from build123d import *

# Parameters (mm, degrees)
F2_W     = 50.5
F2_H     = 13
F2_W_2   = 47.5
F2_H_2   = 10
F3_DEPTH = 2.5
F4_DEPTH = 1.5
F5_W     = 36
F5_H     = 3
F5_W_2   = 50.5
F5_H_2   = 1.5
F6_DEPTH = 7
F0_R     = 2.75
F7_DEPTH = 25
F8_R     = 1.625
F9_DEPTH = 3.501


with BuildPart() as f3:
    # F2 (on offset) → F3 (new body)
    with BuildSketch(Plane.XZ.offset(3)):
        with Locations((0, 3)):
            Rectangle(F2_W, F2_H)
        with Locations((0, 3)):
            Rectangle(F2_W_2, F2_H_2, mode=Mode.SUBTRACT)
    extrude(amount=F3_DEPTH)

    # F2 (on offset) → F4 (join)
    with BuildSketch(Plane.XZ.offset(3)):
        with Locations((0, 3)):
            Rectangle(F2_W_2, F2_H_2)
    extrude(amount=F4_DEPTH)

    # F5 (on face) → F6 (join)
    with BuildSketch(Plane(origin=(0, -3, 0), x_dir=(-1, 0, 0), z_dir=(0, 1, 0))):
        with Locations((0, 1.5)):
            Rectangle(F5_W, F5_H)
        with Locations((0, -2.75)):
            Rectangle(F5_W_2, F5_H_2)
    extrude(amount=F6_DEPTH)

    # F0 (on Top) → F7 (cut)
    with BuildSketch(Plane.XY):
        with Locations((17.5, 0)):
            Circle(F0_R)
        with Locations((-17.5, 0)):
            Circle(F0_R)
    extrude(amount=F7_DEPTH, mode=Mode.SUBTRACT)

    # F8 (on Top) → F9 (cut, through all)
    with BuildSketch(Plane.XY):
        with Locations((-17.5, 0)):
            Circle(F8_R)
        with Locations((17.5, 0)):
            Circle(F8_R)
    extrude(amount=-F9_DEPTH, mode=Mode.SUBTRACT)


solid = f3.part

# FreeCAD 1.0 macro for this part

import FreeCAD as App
import Part
import Sketcher
from FreeCAD import Vector
Q = App.Units.Quantity

doc = App.newDocument("Part")
params = doc.addObject("Spreadsheet::Sheet", "Params")
for row, (alias, value) in enumerate([
    ("sketch1_height", "13 mm"),
    ("sketch1_height2", "10 mm"),
    ("sketch1_width", "50.5 mm"),
    ("sketch1_width2", "47.5 mm"),
    ("pad1_length", "2.5 mm"),
    ("sketch2_height", "10 mm"),
    ("sketch2_width", "47.5 mm"),
    ("pad2_length", "1.5 mm"),
    ("sketch3_width", "36 mm"),
    ("sketch3_height", "3 mm"),
    ("sketch3_width2", "50.5 mm"),
    ("sketch3_height2", "1.5 mm"),
    ("pad3_length", "7 mm"),
    ("sketch4_diameter", "5.5 mm"),
    ("pocket1_length", "25 mm"),
    ("sketch5_diameter", "3.25 mm"),
], start=1):
    params.set(f"A{row}", alias)
    params.set(f"B{row}", "=" + value)
    params.setAlias(f"B{row}", alias)

body = doc.addObject("PartDesign::Body", "Body")

# Sketch on XZ plane
sketch1 = doc.addObject("Sketcher::SketchObject", "Sketch")
body.addObject(sketch1)
sketch1.AttachmentSupport = (doc.XZ_Plane, [""])
sketch1.MapMode = "FlatFace"
sketch1.AttachmentOffset = App.Placement(Vector(0, 0, 3), App.Rotation())
sketch1.addGeometry(Part.LineSegment(Vector(-25, 10, 0), Vector(-25, -4, 0)), False)
sketch1.addGeometry(Part.LineSegment(Vector(-25, -4, 0), Vector(25, -4, 0)), False)
sketch1.addGeometry(Part.LineSegment(Vector(25, -4, 0), Vector(25, 10, 0)), False)
sketch1.addGeometry(Part.LineSegment(Vector(25, 10, 0), Vector(-25, 10, 0)), False)
sketch1.addGeometry(Part.LineSegment(Vector(24, -2, 0), Vector(-24, -2, 0)), False)
sketch1.addGeometry(Part.LineSegment(Vector(-24, -2, 0), Vector(-24, 8, 0)), False)
sketch1.addGeometry(Part.LineSegment(Vector(-24, 8, 0), Vector(24, 8, 0)), False)
sketch1.addGeometry(Part.LineSegment(Vector(24, 8, 0), Vector(24, -2, 0)), False)
sketch1.addConstraint(Sketcher.Constraint("Coincident", 0, 2, 1, 1))
sketch1.addConstraint(Sketcher.Constraint("Coincident", 1, 2, 2, 1))
sketch1.addConstraint(Sketcher.Constraint("Coincident", 2, 2, 3, 1))
sketch1.addConstraint(Sketcher.Constraint("Coincident", 3, 2, 0, 1))
sketch1.addConstraint(Sketcher.Constraint("Coincident", 4, 2, 5, 1))
sketch1.addConstraint(Sketcher.Constraint("Coincident", 5, 2, 6, 1))
sketch1.addConstraint(Sketcher.Constraint("Coincident", 6, 2, 7, 1))
sketch1.addConstraint(Sketcher.Constraint("Coincident", 7, 2, 4, 1))
sketch1.addConstraint(Sketcher.Constraint("Vertical", 0))
sketch1.addConstraint(Sketcher.Constraint("Horizontal", 1))
sketch1.addConstraint(Sketcher.Constraint("Vertical", 2))
sketch1.addConstraint(Sketcher.Constraint("Horizontal", 3))
sketch1.addConstraint(Sketcher.Constraint("Horizontal", 4))
sketch1.addConstraint(Sketcher.Constraint("Vertical", 5))
sketch1.addConstraint(Sketcher.Constraint("Horizontal", 6))
sketch1.addConstraint(Sketcher.Constraint("Vertical", 7))
sketch1.addConstraint(Sketcher.Constraint("DistanceY", 0, 2, 0, 1, Q("13 mm")))
sketch1.addConstraint(Sketcher.Constraint("DistanceY", 5, 1, 5, 2, Q("10 mm")))
sketch1.addConstraint(Sketcher.Constraint("DistanceX", 1, 1, 1, 2, Q("50.5 mm")))
sketch1.addConstraint(Sketcher.Constraint("DistanceX", 4, 2, 4, 1, Q("47.5 mm")))
sketch1.addConstraint(Sketcher.Constraint("DistanceY", 4, 2, -1, 1, Q("2 mm")))
sketch1.addConstraint(Sketcher.Constraint("DistanceX", 4, 2, 1, 2, Q("49 mm")))
sketch1.addConstraint(Sketcher.Constraint("DistanceY", 0, 2, -1, 1, Q("3.5 mm")))
sketch1.addConstraint(Sketcher.Constraint("DistanceX", 0, 2, -1, 1, Q("25.25 mm")))
sketch1.setExpression("Constraints[16]", "Params.sketch1_height")
sketch1.setExpression("Constraints[17]", "Params.sketch1_height2")
sketch1.setExpression("Constraints[18]", "Params.sketch1_width")
sketch1.setExpression("Constraints[19]", "Params.sketch1_width2")
pad1 = doc.addObject("PartDesign::Pad", "Pad")
body.addObject(pad1)
pad1.Profile = sketch1
pad1.setExpression("Length", "Params.pad1_length")

# Sketch on XZ plane
sketch2 = doc.addObject("Sketcher::SketchObject", "Sketch001")
body.addObject(sketch2)
sketch2.AttachmentSupport = (doc.XZ_Plane, [""])
sketch2.MapMode = "FlatFace"
sketch2.AttachmentOffset = App.Placement(Vector(0, 0, 3), App.Rotation())
sketch2.addGeometry(Part.LineSegment(Vector(-24, 8, 0), Vector(-24, -2, 0)), False)
sketch2.addGeometry(Part.LineSegment(Vector(-24, -2, 0), Vector(24, -2, 0)), False)
sketch2.addGeometry(Part.LineSegment(Vector(24, -2, 0), Vector(24, 8, 0)), False)
sketch2.addGeometry(Part.LineSegment(Vector(24, 8, 0), Vector(-24, 8, 0)), False)
sketch2.addConstraint(Sketcher.Constraint("Coincident", 0, 2, 1, 1))
sketch2.addConstraint(Sketcher.Constraint("Coincident", 1, 2, 2, 1))
sketch2.addConstraint(Sketcher.Constraint("Coincident", 2, 2, 3, 1))
sketch2.addConstraint(Sketcher.Constraint("Coincident", 3, 2, 0, 1))
sketch2.addConstraint(Sketcher.Constraint("Vertical", 0))
sketch2.addConstraint(Sketcher.Constraint("Horizontal", 1))
sketch2.addConstraint(Sketcher.Constraint("Vertical", 2))
sketch2.addConstraint(Sketcher.Constraint("Horizontal", 3))
sketch2.addConstraint(Sketcher.Constraint("DistanceY", 0, 2, 0, 1, Q("10 mm")))
sketch2.addConstraint(Sketcher.Constraint("DistanceX", 1, 1, 1, 2, Q("47.5 mm")))
sketch2.addConstraint(Sketcher.Constraint("DistanceY", 0, 2, -1, 1, Q("2 mm")))
sketch2.addConstraint(Sketcher.Constraint("DistanceX", 0, 2, -1, 1, Q("23.75 mm")))
sketch2.setExpression("Constraints[8]", "Params.sketch2_height")
sketch2.setExpression("Constraints[9]", "Params.sketch2_width")
pad2 = doc.addObject("PartDesign::Pad", "Pad001")
body.addObject(pad2)
pad2.Profile = sketch2
pad2.setExpression("Length", "Params.pad2_length")

# Sketch on XZ plane
sketch3 = doc.addObject("Sketcher::SketchObject", "Sketch002")
body.addObject(sketch3)
sketch3.AttachmentSupport = (doc.XZ_Plane, [""])
sketch3.MapMode = "FlatFace"
sketch3.AttachmentOffset = App.Placement(Vector(0, 0, 3), App.Rotation())
sketch3.addGeometry(Part.LineSegment(Vector(18, 3, 0), Vector(18, 0, 0)), False)
sketch3.addGeometry(Part.LineSegment(Vector(18, 0, 0), Vector(-18, 0, 0)), False)
sketch3.addGeometry(Part.LineSegment(Vector(-18, 0, 0), Vector(-18, 3, 0)), False)
sketch3.addGeometry(Part.LineSegment(Vector(-18, 3, 0), Vector(18, 3, 0)), False)
sketch3.addGeometry(Part.LineSegment(Vector(25.2, -2, 0), Vector(25.2, -3.5, 0)), False)
sketch3.addGeometry(Part.LineSegment(Vector(25.2, -3.5, 0), Vector(-25.2, -3.5, 0)), False)
sketch3.addGeometry(Part.LineSegment(Vector(-25.2, -3.5, 0), Vector(-25.2, -2, 0)), False)
sketch3.addGeometry(Part.LineSegment(Vector(-25.2, -2, 0), Vector(25.2, -2, 0)), False)
sketch3.addConstraint(Sketcher.Constraint("Coincident", 0, 2, 1, 1))
sketch3.addConstraint(Sketcher.Constraint("Coincident", 1, 2, 2, 1))
sketch3.addConstraint(Sketcher.Constraint("Coincident", 2, 2, 3, 1))
sketch3.addConstraint(Sketcher.Constraint("Coincident", 3, 2, 0, 1))
sketch3.addConstraint(Sketcher.Constraint("Coincident", 4, 2, 5, 1))
sketch3.addConstraint(Sketcher.Constraint("Coincident", 5, 2, 6, 1))
sketch3.addConstraint(Sketcher.Constraint("Coincident", 6, 2, 7, 1))
sketch3.addConstraint(Sketcher.Constraint("Coincident", 7, 2, 4, 1))
sketch3.addConstraint(Sketcher.Constraint("Vertical", 0))
sketch3.addConstraint(Sketcher.Constraint("Horizontal", 1))
sketch3.addConstraint(Sketcher.Constraint("Vertical", 2))
sketch3.addConstraint(Sketcher.Constraint("Horizontal", 3))
sketch3.addConstraint(Sketcher.Constraint("Vertical", 4))
sketch3.addConstraint(Sketcher.Constraint("Horizontal", 5))
sketch3.addConstraint(Sketcher.Constraint("Vertical", 6))
sketch3.addConstraint(Sketcher.Constraint("Horizontal", 7))
sketch3.addConstraint(Sketcher.Constraint("Symmetric", 0, 2, 1, 2, -1, 1))
sketch3.addConstraint(Sketcher.Constraint("DistanceX", 1, 2, 1, 1, Q("36 mm")))
sketch3.addConstraint(Sketcher.Constraint("DistanceY", 0, 2, 0, 1, Q("3 mm")))
sketch3.addConstraint(Sketcher.Constraint("DistanceX", 5, 2, 5, 1, Q("50.5 mm")))
sketch3.addConstraint(Sketcher.Constraint("DistanceY", 4, 2, 4, 1, Q("1.5 mm")))
sketch3.addConstraint(Sketcher.Constraint("DistanceY", 6, 2, -1, 1, Q("2 mm")))
sketch3.addConstraint(Sketcher.Constraint("DistanceX", -1, 1, 4, 2, Q("25.25 mm")))
sketch3.setExpression("Constraints[17]", "Params.sketch3_width")
sketch3.setExpression("Constraints[18]", "Params.sketch3_height")
sketch3.setExpression("Constraints[19]", "Params.sketch3_width2")
sketch3.setExpression("Constraints[20]", "Params.sketch3_height2")
pad3 = doc.addObject("PartDesign::Pad", "Pad002")
body.addObject(pad3)
pad3.Profile = sketch3
pad3.setExpression("Length", "Params.pad3_length")
pad3.Reversed = True

# Sketch on XY plane
sketch4 = doc.addObject("Sketcher::SketchObject", "Sketch003")
body.addObject(sketch4)
sketch4.AttachmentSupport = (doc.XY_Plane, [""])
sketch4.MapMode = "FlatFace"
sketch4.addGeometry(Part.Circle(Vector(17.5, 0, 0), Vector(0, 0, 1), 2.8), False)
sketch4.addGeometry(Part.Circle(Vector(-17.5, 0, 0), Vector(0, 0, 1), 2.8), False)
sketch4.addConstraint(Sketcher.Constraint("Equal", 0, 1))
sketch4.addConstraint(Sketcher.Constraint("Symmetric", 0, 3, 1, 3, -1, 1))
sketch4.addConstraint(Sketcher.Constraint("PointOnObject", 0, 3, -1))
sketch4.addConstraint(Sketcher.Constraint("Diameter", 0, Q("5.5 mm")))
sketch4.addConstraint(Sketcher.Constraint("DistanceX", 1, 3, 0, 3, Q("35 mm")))
sketch4.setExpression("Constraints[3]", "Params.sketch4_diameter")
pocket1 = doc.addObject("PartDesign::Pocket", "Pocket")
body.addObject(pocket1)
pocket1.Profile = sketch4
pocket1.setExpression("Length", "Params.pocket1_length")
pocket1.Reversed = True

# Sketch on XY plane
sketch5 = doc.addObject("Sketcher::SketchObject", "Sketch004")
body.addObject(sketch5)
sketch5.AttachmentSupport = (doc.XY_Plane, [""])
sketch5.MapMode = "FlatFace"
sketch5.addGeometry(Part.Circle(Vector(-17.5, 0, 0), Vector(0, 0, 1), 1.6), False)
sketch5.addGeometry(Part.Circle(Vector(17.5, 0, 0), Vector(0, 0, 1), 1.6), False)
sketch5.addConstraint(Sketcher.Constraint("Equal", 0, 1))
sketch5.addConstraint(Sketcher.Constraint("Symmetric", 0, 3, 1, 3, -1, 1))
sketch5.addConstraint(Sketcher.Constraint("PointOnObject", 0, 3, -1))
sketch5.addConstraint(Sketcher.Constraint("Diameter", 0, Q("3.25 mm")))
sketch5.addConstraint(Sketcher.Constraint("DistanceX", 0, 3, 1, 3, Q("35 mm")))
sketch5.setExpression("Constraints[3]", "Params.sketch5_diameter")
pocket2 = doc.addObject("PartDesign::Pocket", "Pocket001")
body.addObject(pocket2)
pocket2.Profile = sketch5
pocket2.Type = "ThroughAll"

doc.recompute()
